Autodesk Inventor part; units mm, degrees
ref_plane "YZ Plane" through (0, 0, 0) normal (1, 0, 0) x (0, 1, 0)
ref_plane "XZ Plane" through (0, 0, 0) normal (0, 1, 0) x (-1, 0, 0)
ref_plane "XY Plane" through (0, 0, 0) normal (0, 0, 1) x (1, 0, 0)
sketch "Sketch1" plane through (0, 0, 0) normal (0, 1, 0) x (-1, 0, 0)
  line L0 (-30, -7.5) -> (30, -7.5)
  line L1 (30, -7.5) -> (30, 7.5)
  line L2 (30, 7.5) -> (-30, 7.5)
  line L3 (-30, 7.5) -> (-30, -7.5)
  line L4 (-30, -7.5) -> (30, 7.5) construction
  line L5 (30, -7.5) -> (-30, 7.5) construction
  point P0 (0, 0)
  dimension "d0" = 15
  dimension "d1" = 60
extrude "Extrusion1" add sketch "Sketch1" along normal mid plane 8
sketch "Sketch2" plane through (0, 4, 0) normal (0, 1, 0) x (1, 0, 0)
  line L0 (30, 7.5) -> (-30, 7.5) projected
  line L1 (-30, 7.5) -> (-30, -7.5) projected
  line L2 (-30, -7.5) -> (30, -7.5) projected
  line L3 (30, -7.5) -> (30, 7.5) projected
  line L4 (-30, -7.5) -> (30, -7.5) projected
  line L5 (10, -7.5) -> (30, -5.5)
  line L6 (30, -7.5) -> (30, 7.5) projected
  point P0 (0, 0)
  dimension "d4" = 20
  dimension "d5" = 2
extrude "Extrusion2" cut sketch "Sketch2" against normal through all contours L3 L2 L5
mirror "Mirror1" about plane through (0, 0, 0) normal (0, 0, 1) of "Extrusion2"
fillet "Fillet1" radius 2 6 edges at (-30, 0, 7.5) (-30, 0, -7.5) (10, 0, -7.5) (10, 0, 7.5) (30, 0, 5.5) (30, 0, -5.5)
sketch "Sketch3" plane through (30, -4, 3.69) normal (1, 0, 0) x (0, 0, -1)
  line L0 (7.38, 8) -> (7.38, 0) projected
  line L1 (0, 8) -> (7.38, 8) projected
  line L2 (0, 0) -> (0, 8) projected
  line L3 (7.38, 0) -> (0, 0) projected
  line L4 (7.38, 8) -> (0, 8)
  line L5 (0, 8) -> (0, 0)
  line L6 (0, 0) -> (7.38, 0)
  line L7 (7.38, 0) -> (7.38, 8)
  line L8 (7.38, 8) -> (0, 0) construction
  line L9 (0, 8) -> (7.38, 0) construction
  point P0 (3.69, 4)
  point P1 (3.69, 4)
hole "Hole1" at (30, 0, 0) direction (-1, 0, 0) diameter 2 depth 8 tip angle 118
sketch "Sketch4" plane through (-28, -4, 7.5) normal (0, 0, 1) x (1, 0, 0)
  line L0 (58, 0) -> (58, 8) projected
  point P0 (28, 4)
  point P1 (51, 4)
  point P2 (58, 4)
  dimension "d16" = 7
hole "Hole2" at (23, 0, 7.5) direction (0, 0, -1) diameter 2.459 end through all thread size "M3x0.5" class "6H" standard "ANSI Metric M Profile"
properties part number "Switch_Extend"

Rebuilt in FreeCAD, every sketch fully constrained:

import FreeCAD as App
import Part
import Sketcher

V = App.Vector
Q = App.Units.Quantity


def edges_at(feature, points):
    """Names of the edges that pass closest to the given points."""
    edges = feature.Shape.Edges
    near = lambda p: min(range(len(edges)), key=lambda i: edges[i].distToShape(Part.Vertex(*p))[0])
    return sorted({f"Edge{near(p) + 1}" for p in points})

doc = App.newDocument("Part")
body = doc.addObject("PartDesign::Body", "Body")

sketch1 = body.newObject("Sketcher::SketchObject", "Sketch")
sketch1.AttachmentSupport = (doc.getObject("XZ_Plane"), [""])
sketch1.MapMode = "FlatFace"
sketch1.addGeometry([
    Part.LineSegment(V(30, 8, 0), V(30, -8, 0)),
    Part.LineSegment(V(30, -8, 0), V(-30, -8, 0)),
    Part.LineSegment(V(-30, -8, 0), V(-30, 8, 0)),
    Part.LineSegment(V(-30, 8, 0), V(30, 8, 0)),
], False)
sketch1.addConstraint([
    Sketcher.Constraint("Coincident", 0, 2, 1, 1),
    Sketcher.Constraint("Coincident", 1, 2, 2, 1),
    Sketcher.Constraint("Coincident", 2, 2, 3, 1),
    Sketcher.Constraint("Coincident", 3, 2, 0, 1),
    Sketcher.Constraint("Vertical", 0),
    Sketcher.Constraint("Horizontal", 1),
    Sketcher.Constraint("Vertical", 2),
    Sketcher.Constraint("Horizontal", 3),
    Sketcher.Constraint("Symmetric", 0, 2, 2, 2, -1, 1),
    Sketcher.Constraint("DistanceX", 1, 2, 1, 1, Q("60 mm")),
    Sketcher.Constraint("DistanceY", 0, 2, 0, 1, Q("15 mm")),
])
pad1 = body.newObject("PartDesign::Pad", "Pad")
pad1.Profile = sketch1
pad1.Length = 8
pad1.Midplane = True

sketch2 = body.newObject("Sketcher::SketchObject", "Sketch001")
sketch2.AttachmentSupport = (doc.getObject("XZ_Plane"), [""])
sketch2.MapMode = "FlatFace"
sketch2.AttachmentOffset = App.Placement(V(0, 0, -4), App.Rotation())
sketch2.addGeometry([
    Part.LineSegment(V(30, 7.5, 0), V(30, 5.5, 0)),
    Part.LineSegment(V(30, 5.5, 0), V(10, 7.5, 0)),
    Part.LineSegment(V(10, 7.5, 0), V(30, 7.5, 0)),
], False)
sketch2.addConstraint([
    Sketcher.Constraint("Coincident", 0, 2, 1, 1),
    Sketcher.Constraint("Coincident", 1, 2, 2, 1),
    Sketcher.Constraint("Coincident", 2, 2, 0, 1),
    Sketcher.Constraint("Vertical", 0),
    Sketcher.Constraint("Horizontal", 2),
    Sketcher.Constraint("DistanceX", 2, 1, 2, 2, Q("20 mm")),
    Sketcher.Constraint("DistanceY", 0, 2, 0, 1, Q("2 mm")),
    Sketcher.Constraint("DistanceX", -1, 1, 0, 2, Q("30 mm")),
    Sketcher.Constraint("DistanceY", -1, 1, 0, 2, Q("5.5 mm")),
])
pocket1 = body.newObject("PartDesign::Pocket", "Pocket")
pocket1.Profile = sketch2
pocket1.Type = "ThroughAll"
pocket1.Reversed = True
doc.recompute()

mirrored = body.newObject("PartDesign::Mirrored", "Mirrored")
mirrored.Originals = [pocket1]
mirrored.MirrorPlane = (doc.getObject("XY_Plane"), [""])
body.Tip = mirrored
doc.recompute()

fillet = body.newObject("PartDesign::Fillet", "Fillet")
fillet.Base = (mirrored, edges_at(mirrored, [
    (-30, 0, 7.5),
    (-30, 0, -7.5),
    (10, 0, -7.5),
    (10, 0, 7.5),
    (30, 0, 5.5),
    (30, 0, -5.5),
]))
fillet.Radius = 2

sketch3 = body.newObject("Sketcher::SketchObject", "Sketch002")
sketch3.AttachmentSupport = (doc.getObject("YZ_Plane"), [""])
sketch3.MapMode = "FlatFace"
sketch3.AttachmentOffset = App.Placement(V(0, 0, 30), App.Rotation())
sketch3.addGeometry(Part.Circle(V(0, 0, 0), V(0, 0, 1), 1), False)
sketch3.addConstraint([
    Sketcher.Constraint("Coincident", 0, 3, -1, 1),
    Sketcher.Constraint("Diameter", 0, Q("2 mm")),
])
doc.recompute()
hole = body.newObject("PartDesign::Hole", "Hole")
hole.Profile = sketch3
hole.ThreadType = "None"
hole.Diameter = 2
hole.DepthType = "Dimension"
hole.Depth = 8
hole.DrillPoint = "Angled"
hole.DrillPointAngle = 118

sketch4 = body.newObject("Sketcher::SketchObject", "Sketch003")
sketch4.AttachmentSupport = (doc.getObject("XY_Plane"), [""])
sketch4.MapMode = "FlatFace"
sketch4.AttachmentOffset = App.Placement(V(0, 0, 7.5), App.Rotation())
sketch4.addGeometry(Part.Circle(V(23, 0, 0), V(0, 0, 1), 1.2), False)
sketch4.addConstraint([
    Sketcher.Constraint("PointOnObject", 0, 3, -1),
    Sketcher.Constraint("Diameter", 0, Q("2.459 mm")),
    Sketcher.Constraint("DistanceX", -1, 1, 0, 3, Q("23 mm")),
])
doc.recompute()
hole2 = body.newObject("PartDesign::Hole", "Hole001")
hole2.Profile = sketch4
hole2.ThreadType = "None"
hole2.Diameter = 2.459
hole2.DepthType = "ThroughAll"

doc.recompute()
